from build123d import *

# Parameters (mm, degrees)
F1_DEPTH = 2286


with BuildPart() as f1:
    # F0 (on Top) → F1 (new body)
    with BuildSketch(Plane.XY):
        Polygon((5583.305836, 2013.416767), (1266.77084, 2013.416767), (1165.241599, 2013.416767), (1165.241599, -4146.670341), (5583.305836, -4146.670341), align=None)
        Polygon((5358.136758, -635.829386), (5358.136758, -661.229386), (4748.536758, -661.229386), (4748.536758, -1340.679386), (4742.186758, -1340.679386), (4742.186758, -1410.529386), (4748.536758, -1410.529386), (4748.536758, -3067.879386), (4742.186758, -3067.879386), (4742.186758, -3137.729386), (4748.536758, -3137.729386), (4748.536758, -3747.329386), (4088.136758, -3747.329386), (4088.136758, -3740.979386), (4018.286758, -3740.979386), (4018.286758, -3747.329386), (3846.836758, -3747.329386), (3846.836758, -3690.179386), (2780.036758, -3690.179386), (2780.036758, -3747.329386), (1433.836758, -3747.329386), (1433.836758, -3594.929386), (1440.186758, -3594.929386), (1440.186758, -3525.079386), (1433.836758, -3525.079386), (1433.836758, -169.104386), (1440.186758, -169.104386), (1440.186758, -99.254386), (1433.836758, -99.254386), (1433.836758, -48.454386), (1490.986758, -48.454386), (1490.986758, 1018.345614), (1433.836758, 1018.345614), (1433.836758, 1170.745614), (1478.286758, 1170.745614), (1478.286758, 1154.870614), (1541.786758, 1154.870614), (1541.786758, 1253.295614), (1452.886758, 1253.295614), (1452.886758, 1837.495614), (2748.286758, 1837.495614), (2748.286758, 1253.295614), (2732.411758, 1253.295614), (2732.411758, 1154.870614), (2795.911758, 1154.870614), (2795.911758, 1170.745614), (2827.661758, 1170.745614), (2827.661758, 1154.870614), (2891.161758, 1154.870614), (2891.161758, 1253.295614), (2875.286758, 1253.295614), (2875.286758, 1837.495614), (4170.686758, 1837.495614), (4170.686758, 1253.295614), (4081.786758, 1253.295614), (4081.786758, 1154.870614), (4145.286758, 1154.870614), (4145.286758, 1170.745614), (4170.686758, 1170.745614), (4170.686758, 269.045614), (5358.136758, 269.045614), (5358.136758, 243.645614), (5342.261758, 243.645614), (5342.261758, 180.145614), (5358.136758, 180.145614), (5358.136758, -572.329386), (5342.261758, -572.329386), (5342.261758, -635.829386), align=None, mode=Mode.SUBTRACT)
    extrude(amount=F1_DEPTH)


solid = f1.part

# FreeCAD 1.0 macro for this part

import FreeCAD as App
import Part
import Sketcher

V = App.Vector
Q = App.Units.Quantity


def add_polygon(sketch, points):
    """Adds a closed chain of lines whose ends are joined by coincident constraints."""
    first, n = sketch.GeometryCount, len(points)
    for a, b in zip(points, points[1:] + points[:1]):
        sketch.addGeometry(Part.LineSegment(App.Vector(*a, 0), App.Vector(*b, 0)), False)
    for i in range(n):
        sketch.addConstraint(Sketcher.Constraint("Coincident", first + i, 2, first + (i + 1) % n, 1))

doc = App.newDocument("Part")
params = doc.addObject("Spreadsheet::Sheet", "Params")
for row, (alias, value) in enumerate([
    ("sketch1_width", "24 in"),
    ("sketch1_width2", "26 in"),
    ("sketch1_width3", "42 in"),
    ("sketch1_width4", "53 in"),
    ("sketch1_width5", "51 in"),
    ("pad1_length", "90 in"),
], start=1):
    params.set(f"A{row}", alias)
    params.set(f"B{row}", "=" + value)
    params.setAlias(f"B{row}", alias)

body = doc.addObject("PartDesign::Body", "Body")

# Sketch on XY plane
sketch1 = body.newObject("Sketcher::SketchObject", "Sketch")
sketch1.AttachmentSupport = (doc.getObject("XY_Plane"), [""])
sketch1.MapMode = "FlatFace"
add_polygon(sketch1, [(5583, 2013), (1165, 2013), (1165, -4147), (5583, -4147)])  # lines 0-3
add_polygon(sketch1, [(5342, -636), (5358, -636), (5358, -661), (4749, -661), (4749, -1341), (4742, -1341), (4742, -1411), (4749, -1411), (4749, -3068), (4742, -3068), (4742, -3138), (4749, -3138), (4749, -3747), (4088, -3747), (4088, -3741), (4018, -3741), (4018, -3747), (3847, -3747), (3847, -3690), (2780, -3690), (2780, -3747), (1434, -3747), (1434, -3595), (1440, -3595), (1440, -3525), (1434, -3525), (1434, -169), (1440, -169), (1440, -99), (1434, -99), (1434, -48), (1491, -48), (1491, 1018), (1434, 1018), (1434, 1171), (1478, 1171), (1478, 1155), (1542, 1155), (1542, 1253), (1453, 1253), (1453, 1837), (2748, 1837), (2748, 1253), (2732, 1253), (2732, 1155), (2796, 1155), (2796, 1171), (2828, 1171), (2828, 1155), (2891, 1155), (2891, 1253), (2875, 1253), (2875, 1837), (4171, 1837), (4171, 1253), (4082, 1253), (4082, 1155), (4145, 1155), (4145, 1171), (4171, 1171), (4171, 269), (5358, 269), (5358, 244), (5342, 244), (5342, 180), (5358, 180), (5358, -572), (5342, -572)])  # lines 4-71
sketch1.addConstraint(Sketcher.Constraint("Horizontal", 0))
sketch1.addConstraint(Sketcher.Constraint("Vertical", 1))
sketch1.addConstraint(Sketcher.Constraint("Horizontal", 2))
sketch1.addConstraint(Sketcher.Constraint("Vertical", 3))
sketch1.addConstraint(Sketcher.Constraint("Horizontal", 4))
sketch1.addConstraint(Sketcher.Constraint("Vertical", 5))
sketch1.addConstraint(Sketcher.Constraint("Horizontal", 6))
sketch1.addConstraint(Sketcher.Constraint("Vertical", 7))
sketch1.addConstraint(Sketcher.Constraint("Horizontal", 8))
sketch1.addConstraint(Sketcher.Constraint("Vertical", 9))
sketch1.addConstraint(Sketcher.Constraint("Horizontal", 10))
sketch1.addConstraint(Sketcher.Constraint("Vertical", 11))
sketch1.addConstraint(Sketcher.Constraint("Horizontal", 12))
sketch1.addConstraint(Sketcher.Constraint("Vertical", 13))
sketch1.addConstraint(Sketcher.Constraint("Horizontal", 14))
sketch1.addConstraint(Sketcher.Constraint("Vertical", 15))
sketch1.addConstraint(Sketcher.Constraint("Horizontal", 16))
sketch1.addConstraint(Sketcher.Constraint("Vertical", 17))
sketch1.addConstraint(Sketcher.Constraint("Horizontal", 18))
sketch1.addConstraint(Sketcher.Constraint("Vertical", 19))
sketch1.addConstraint(Sketcher.Constraint("Horizontal", 20))
sketch1.addConstraint(Sketcher.Constraint("Vertical", 21))
sketch1.addConstraint(Sketcher.Constraint("Horizontal", 22))
sketch1.addConstraint(Sketcher.Constraint("Vertical", 23))
sketch1.addConstraint(Sketcher.Constraint("Horizontal", 24))
sketch1.addConstraint(Sketcher.Constraint("Vertical", 25))
sketch1.addConstraint(Sketcher.Constraint("Horizontal", 26))
sketch1.addConstraint(Sketcher.Constraint("Vertical", 27))
sketch1.addConstraint(Sketcher.Constraint("Horizontal", 28))
sketch1.addConstraint(Sketcher.Constraint("Vertical", 29))
sketch1.addConstraint(Sketcher.Constraint("Horizontal", 30))
sketch1.addConstraint(Sketcher.Constraint("Vertical", 31))
sketch1.addConstraint(Sketcher.Constraint("Horizontal", 32))
sketch1.addConstraint(Sketcher.Constraint("Vertical", 33))
sketch1.addConstraint(Sketcher.Constraint("Horizontal", 34))
sketch1.addConstraint(Sketcher.Constraint("Vertical", 35))
sketch1.addConstraint(Sketcher.Constraint("Horizontal", 36))
sketch1.addConstraint(Sketcher.Constraint("Vertical", 37))
sketch1.addConstraint(Sketcher.Constraint("Horizontal", 38))
sketch1.addConstraint(Sketcher.Constraint("Vertical", 39))
sketch1.addConstraint(Sketcher.Constraint("Horizontal", 40))
sketch1.addConstraint(Sketcher.Constraint("Vertical", 41))
sketch1.addConstraint(Sketcher.Constraint("Horizontal", 42))
sketch1.addConstraint(Sketcher.Constraint("Vertical", 43))
sketch1.addConstraint(Sketcher.Constraint("Horizontal", 44))
sketch1.addConstraint(Sketcher.Constraint("Vertical", 45))
sketch1.addConstraint(Sketcher.Constraint("Horizontal", 46))
sketch1.addConstraint(Sketcher.Constraint("Vertical", 47))
sketch1.addConstraint(Sketcher.Constraint("Horizontal", 48))
sketch1.addConstraint(Sketcher.Constraint("Vertical", 49))
sketch1.addConstraint(Sketcher.Constraint("Horizontal", 50))
sketch1.addConstraint(Sketcher.Constraint("Vertical", 51))
sketch1.addConstraint(Sketcher.Constraint("Horizontal", 52))
sketch1.addConstraint(Sketcher.Constraint("Vertical", 53))
sketch1.addConstraint(Sketcher.Constraint("Horizontal", 54))
sketch1.addConstraint(Sketcher.Constraint("Vertical", 55))
sketch1.addConstraint(Sketcher.Constraint("Horizontal", 56))
sketch1.addConstraint(Sketcher.Constraint("Vertical", 57))
sketch1.addConstraint(Sketcher.Constraint("Horizontal", 58))
sketch1.addConstraint(Sketcher.Constraint("Vertical", 59))
sketch1.addConstraint(Sketcher.Constraint("Horizontal", 60))
sketch1.addConstraint(Sketcher.Constraint("Vertical", 61))
sketch1.addConstraint(Sketcher.Constraint("Horizontal", 62))
sketch1.addConstraint(Sketcher.Constraint("Vertical", 63))
sketch1.addConstraint(Sketcher.Constraint("Horizontal", 64))
sketch1.addConstraint(Sketcher.Constraint("Vertical", 65))
sketch1.addConstraint(Sketcher.Constraint("Horizontal", 66))
sketch1.addConstraint(Sketcher.Constraint("Vertical", 67))
sketch1.addConstraint(Sketcher.Constraint("Horizontal", 68))
sketch1.addConstraint(Sketcher.Constraint("Vertical", 69))
sketch1.addConstraint(Sketcher.Constraint("Horizontal", 70))
sketch1.addConstraint(Sketcher.Constraint("Vertical", 71))
sketch1.addConstraint(Sketcher.Constraint("Horizontal", 16, 2, 19, 2))
sketch1.addConstraint(Sketcher.Constraint("Horizontal", 20, 2, 23, 2))
sketch1.addConstraint(Sketcher.Constraint("Horizontal", 42, 2, 45, 2))
sketch1.addConstraint(Sketcher.Constraint("Horizontal", 40, 2, 47, 2))
sketch1.addConstraint(Sketcher.Constraint("Horizontal", 38, 2, 49, 2))
sketch1.addConstraint(Sketcher.Constraint("Horizontal", 48, 2, 51, 2))
sketch1.addConstraint(Sketcher.Constraint("Horizontal", 46, 2, 53, 2))
sketch1.addConstraint(Sketcher.Constraint("Horizontal", 44, 2, 55, 2))
sketch1.addConstraint(Sketcher.Constraint("Horizontal", 54, 2, 57, 2))
sketch1.addConstraint(Sketcher.Constraint("Horizontal", 52, 2, 59, 2))
sketch1.addConstraint(Sketcher.Constraint("Horizontal", 50, 2, 61, 2))
sketch1.addConstraint(Sketcher.Constraint("Vertical", 7, 2, 10, 2))
sketch1.addConstraint(Sketcher.Constraint("Vertical", 9, 2, 12, 2))
sketch1.addConstraint(Sketcher.Constraint("Vertical", 11, 2, 14, 2))
sketch1.addConstraint(Sketcher.Constraint("Vertical", 25, 2, 28, 2))
sketch1.addConstraint(Sketcher.Constraint("Vertical", 27, 2, 30, 2))
sketch1.addConstraint(Sketcher.Constraint("Vertical", 29, 2, 32, 2))
sketch1.addConstraint(Sketcher.Constraint("Vertical", 33, 2, 36, 2))
sketch1.addConstraint(Sketcher.Constraint("Vertical", 57, 2, 62, 2))
sketch1.addConstraint(Sketcher.Constraint("Vertical", 5, 2, 64, 2))
sketch1.addConstraint(Sketcher.Constraint("Vertical", 65, 2, 68, 2))
sketch1.addConstraint(Sketcher.Constraint("Vertical", 67, 2, 70, 2))
sketch1.addConstraint(Sketcher.Constraint("Equal", 14, 26))
sketch1.addConstraint(Sketcher.Constraint("Equal", 4, 46))
sketch1.addConstraint(Sketcher.Constraint("Equal", 40, 48))
sketch1.addConstraint(Sketcher.Constraint("Equal", 48, 52))
sketch1.addConstraint(Sketcher.Constraint("Equal", 46, 54))
sketch1.addConstraint(Sketcher.Constraint("Equal", 44, 56))
sketch1.addConstraint(Sketcher.Constraint("Equal", 42, 58))
sketch1.addConstraint(Sketcher.Constraint("Equal", 52, 60))
sketch1.addConstraint(Sketcher.Constraint("Equal", 62, 5))
sketch1.addConstraint(Sketcher.Constraint("Equal", 18, 9))
sketch1.addConstraint(Sketcher.Constraint("Equal", 9, 13))
sketch1.addConstraint(Sketcher.Constraint("Equal", 6, 15))
sketch1.addConstraint(Sketcher.Constraint("Equal", 32, 17))
sketch1.addConstraint(Sketcher.Constraint("Equal", 36, 21))
sketch1.addConstraint(Sketcher.Constraint("Equal", 13, 27))
sketch1.addConstraint(Sketcher.Constraint("Equal", 27, 31))
sketch1.addConstraint(Sketcher.Constraint("Equal", 22, 35))
sketch1.addConstraint(Sketcher.Constraint("Equal", 25, 37))
sketch1.addConstraint(Sketcher.Constraint("Equal", 70, 39))
sketch1.addConstraint(Sketcher.Constraint("Equal", 5, 65))
sketch1.addConstraint(Sketcher.Constraint("Equal", 60, 67))
sketch1.addConstraint(Sketcher.Constraint("Equal", 67, 71))
sketch1.addConstraint(Sketcher.Constraint("DistanceX", 6, 2, 6, 1, Q("24 in")))
sketch1.addConstraint(Sketcher.Constraint("DistanceX", 16, 2, 16, 1, Q("26 in")))
sketch1.addConstraint(Sketcher.Constraint("DistanceX", 22, 2, 22, 1, Q("42 in")))
sketch1.addConstraint(Sketcher.Constraint("DistanceX", 24, 2, 24, 1, Q("53 in")))
sketch1.addConstraint(Sketcher.Constraint("DistanceX", 44, 1, 44, 2, Q("51 in")))
sketch1.addConstraint(Sketcher.Constraint("DistanceX", 62, 1, 62, 2, Q("1 in")))
sketch1.addConstraint(Sketcher.Constraint("DistanceY", 25, 1, 25, 2, Q("6 in")))
sketch1.addConstraint(Sketcher.Constraint("DistanceY", 33, 1, 33, 2, Q("2 in")))
sketch1.addConstraint(Sketcher.Constraint("DistanceY", 43, 1, 43, 2, Q("23 in")))
sketch1.addConstraint(Sketcher.Constraint("DistanceX", 40, 1, 40, 2, Q("2.5 in")))
sketch1.addConstraint(Sketcher.Constraint("DistanceY", 63, 2, 63, 1, Q("35.5 in")))
sketch1.addConstraint(Sketcher.Constraint("DistanceX", 8, 2, 8, 1, Q("0.25 in")))
sketch1.addConstraint(Sketcher.Constraint("DistanceX", 18, 2, 18, 1, Q("2.75 in")))
sketch1.addConstraint(Sketcher.Constraint("DistanceX", 20, 2, 20, 1, Q("6.75 in")))
sketch1.addConstraint(Sketcher.Constraint("DistanceX", 34, 1, 34, 2, Q("2.25 in")))
sketch1.addConstraint(Sketcher.Constraint("DistanceX", 38, 1, 38, 2, Q("1.75 in")))
sketch1.addConstraint(Sketcher.Constraint("DistanceX", 50, 1, 50, 2, Q("1.25 in")))
sketch1.addConstraint(Sketcher.Constraint("DistanceX", 64, 1, 64, 2, Q("46.75 in")))
sketch1.addConstraint(Sketcher.Constraint("DistanceY", 7, 2, 7, 1, Q("26.75 in")))
sketch1.addConstraint(Sketcher.Constraint("DistanceY", 11, 2, 11, 1, Q("65.25 in")))
sketch1.addConstraint(Sketcher.Constraint("DistanceY", 29, 1, 29, 2, Q("132.125 in")))
sketch1.addConstraint(Sketcher.Constraint("DistanceY", 41, 1, 41, 2, Q("3.875 in")))
sketch1.addConstraint(Sketcher.Constraint("DistanceX", -1, 1, 0, 2, 1165.241599))
sketch1.addConstraint(Sketcher.Constraint("DistanceX", 0, 2, 0, 1, 4418.064237))
sketch1.addConstraint(Sketcher.Constraint("DistanceY", 1, 2, 1, 1, 6160.087108))
sketch1.addConstraint(Sketcher.Constraint("DistanceY", 1, 2, -1, 1, 4146.670341))
sketch1.addConstraint(Sketcher.Constraint("DistanceX", -1, 1, 6, 2, 4748.536758))
sketch1.addConstraint(Sketcher.Constraint("DistanceY", 4, 2, -1, 1, 635.829386))
sketch1.setExpression("Constraints[188]", "Params.sketch1_width")
sketch1.setExpression("Constraints[189]", "Params.sketch1_width2")
sketch1.setExpression("Constraints[190]", "Params.sketch1_width3")
sketch1.setExpression("Constraints[191]", "Params.sketch1_width4")
sketch1.setExpression("Constraints[192]", "Params.sketch1_width5")
pad1 = body.newObject("PartDesign::Pad", "Pad")
pad1.Profile = sketch1
pad1.setExpression("Length", "Params.pad1_length")

doc.recompute()
